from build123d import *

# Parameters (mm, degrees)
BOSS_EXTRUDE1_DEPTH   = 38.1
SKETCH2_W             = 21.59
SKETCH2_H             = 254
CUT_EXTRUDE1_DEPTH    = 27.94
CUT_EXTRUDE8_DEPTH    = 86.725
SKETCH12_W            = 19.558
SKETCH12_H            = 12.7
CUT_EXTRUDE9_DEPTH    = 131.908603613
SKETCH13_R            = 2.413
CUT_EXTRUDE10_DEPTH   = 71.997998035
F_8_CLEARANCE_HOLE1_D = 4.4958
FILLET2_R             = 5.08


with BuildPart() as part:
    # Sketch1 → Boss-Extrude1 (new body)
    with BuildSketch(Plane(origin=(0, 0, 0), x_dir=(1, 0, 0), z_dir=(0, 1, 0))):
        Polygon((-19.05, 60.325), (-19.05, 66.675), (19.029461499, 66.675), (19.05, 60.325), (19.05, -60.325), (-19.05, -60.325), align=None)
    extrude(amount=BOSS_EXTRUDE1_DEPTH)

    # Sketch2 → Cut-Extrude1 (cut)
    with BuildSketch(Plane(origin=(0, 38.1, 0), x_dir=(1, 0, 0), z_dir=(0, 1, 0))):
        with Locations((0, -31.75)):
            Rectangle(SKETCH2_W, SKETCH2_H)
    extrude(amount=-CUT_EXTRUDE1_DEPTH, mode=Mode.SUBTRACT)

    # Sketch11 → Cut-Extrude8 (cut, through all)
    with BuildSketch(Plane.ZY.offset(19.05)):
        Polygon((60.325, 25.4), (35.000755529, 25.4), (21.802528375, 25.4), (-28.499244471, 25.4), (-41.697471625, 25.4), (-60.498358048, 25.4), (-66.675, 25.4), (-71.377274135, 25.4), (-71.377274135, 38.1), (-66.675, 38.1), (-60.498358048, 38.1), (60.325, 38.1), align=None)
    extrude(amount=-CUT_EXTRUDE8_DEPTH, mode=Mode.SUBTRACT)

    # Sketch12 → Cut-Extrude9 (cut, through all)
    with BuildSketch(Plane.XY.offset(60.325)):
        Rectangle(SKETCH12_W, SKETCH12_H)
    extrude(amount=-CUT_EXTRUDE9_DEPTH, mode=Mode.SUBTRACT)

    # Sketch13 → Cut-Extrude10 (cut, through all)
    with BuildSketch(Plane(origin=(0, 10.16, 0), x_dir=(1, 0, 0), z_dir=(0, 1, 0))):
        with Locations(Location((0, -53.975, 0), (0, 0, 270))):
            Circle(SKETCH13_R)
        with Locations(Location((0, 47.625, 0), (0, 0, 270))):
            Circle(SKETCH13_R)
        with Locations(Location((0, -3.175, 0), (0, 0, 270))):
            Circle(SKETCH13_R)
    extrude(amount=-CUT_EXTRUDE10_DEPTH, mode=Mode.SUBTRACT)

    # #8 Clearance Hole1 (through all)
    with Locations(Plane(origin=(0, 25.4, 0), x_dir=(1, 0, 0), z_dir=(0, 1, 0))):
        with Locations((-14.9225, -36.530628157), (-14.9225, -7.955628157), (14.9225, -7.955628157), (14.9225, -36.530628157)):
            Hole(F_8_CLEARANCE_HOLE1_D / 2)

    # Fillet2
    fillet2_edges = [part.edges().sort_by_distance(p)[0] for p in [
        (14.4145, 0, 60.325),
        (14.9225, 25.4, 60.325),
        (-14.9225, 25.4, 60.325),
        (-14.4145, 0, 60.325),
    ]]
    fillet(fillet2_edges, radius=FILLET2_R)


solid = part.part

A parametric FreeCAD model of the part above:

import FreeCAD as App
import Part
import Sketcher
Q = App.Units.Quantity


def edges_at(feature, points):
    """Names of the edges that pass closest to the given points."""
    edges = feature.Shape.Edges
    near = lambda p: min(range(len(edges)), key=lambda i: edges[i].distToShape(Part.Vertex(*p))[0])
    return sorted({f"Edge{near(p) + 1}" for p in points})

doc = App.newDocument("Part")
body = doc.addObject("PartDesign::Body", "Body")

sketch1 = body.newObject("Sketcher::SketchObject", "Sketch")
sketch1.AttachmentSupport = (doc.getObject("XZ_Plane"), [""])
sketch1.MapMode = "FlatFace"
sketch1.addGeometry(Part.LineSegment(App.Vector(-19, -67, 0), App.Vector(-19, 60, 0)), False)
sketch1.addGeometry(Part.LineSegment(App.Vector(-19, 60, 0), App.Vector(19, 60, 0)), False)
sketch1.addGeometry(Part.LineSegment(App.Vector(19, 60, 0), App.Vector(19, -60, 0)), False)
sketch1.addGeometry(Part.LineSegment(App.Vector(19, -60, 0), App.Vector(19, -67, 0)), False)
sketch1.addGeometry(Part.LineSegment(App.Vector(19, -67, 0), App.Vector(-19, -67, 0)), False)
sketch1.addConstraint(Sketcher.Constraint("Coincident", 0, 2, 1, 1))
sketch1.addConstraint(Sketcher.Constraint("Coincident", 1, 2, 2, 1))
sketch1.addConstraint(Sketcher.Constraint("Coincident", 2, 2, 3, 1))
sketch1.addConstraint(Sketcher.Constraint("Coincident", 3, 2, 4, 1))
sketch1.addConstraint(Sketcher.Constraint("Coincident", 4, 2, 0, 1))
sketch1.addConstraint(Sketcher.Constraint("Vertical", 0))
sketch1.addConstraint(Sketcher.Constraint("Horizontal", 1))
sketch1.addConstraint(Sketcher.Constraint("Vertical", 2))
sketch1.addConstraint(Sketcher.Constraint("Horizontal", 4))
sketch1.addConstraint(Sketcher.Constraint("Symmetric", 0, 2, 2, 2, -1, 1))
sketch1.addConstraint(Sketcher.Constraint("DistanceY", 0, 1, 0, 2, Q("5 in")))
sketch1.addConstraint(Sketcher.Constraint("DistanceX", 1, 1, 1, 2, Q("1.5 in")))
sketch1.addConstraint(Sketcher.Constraint("DistanceY", 2, 2, 2, 1, Q("4.75 in")))
sketch1.addConstraint(Sketcher.Constraint("DistanceX", 4, 2, 4, 1, Q("38.079461 mm")))
pad1 = body.newObject("PartDesign::Pad", "Pad")
pad1.Profile = sketch1
pad1.Length = Q("1.5 in")
pad1.Reversed = True

sketch2 = body.newObject("Sketcher::SketchObject", "Sketch001")
sketch2.AttachmentSupport = (doc.getObject("XZ_Plane"), [""])
sketch2.MapMode = "FlatFace"
sketch2.AttachmentOffset = App.Placement(App.Vector(0, 0, -1.5 * 25.4), App.Rotation())
sketch2.addGeometry(Part.LineSegment(App.Vector(-11, -95, 0), App.Vector(-11, 159, 0)), False)
sketch2.addGeometry(Part.LineSegment(App.Vector(-11, 159, 0), App.Vector(11, 159, 0)), False)
sketch2.addGeometry(Part.LineSegment(App.Vector(11, 159, 0), App.Vector(11, -95, 0)), False)
sketch2.addGeometry(Part.LineSegment(App.Vector(11, -95, 0), App.Vector(-11, -95, 0)), False)
sketch2.addConstraint(Sketcher.Constraint("Coincident", 0, 2, 1, 1))
sketch2.addConstraint(Sketcher.Constraint("Coincident", 1, 2, 2, 1))
sketch2.addConstraint(Sketcher.Constraint("Coincident", 2, 2, 3, 1))
sketch2.addConstraint(Sketcher.Constraint("Coincident", 3, 2, 0, 1))
sketch2.addConstraint(Sketcher.Constraint("Vertical", 0))
sketch2.addConstraint(Sketcher.Constraint("Horizontal", 1))
sketch2.addConstraint(Sketcher.Constraint("Vertical", 2))
sketch2.addConstraint(Sketcher.Constraint("Horizontal", 3))
sketch2.addConstraint(Sketcher.Constraint("DistanceY", 0, 1, 0, 2, Q("10 in")))
sketch2.addConstraint(Sketcher.Constraint("DistanceX", 1, 1, 1, 2, Q("0.85 in")))
sketch2.addConstraint(Sketcher.Constraint("DistanceY", -1, 1, 0, 2, Q("6.25 in")))
sketch2.addConstraint(Sketcher.Constraint("DistanceX", 0, 2, -1, 1, Q("0.425 in")))
pocket1 = body.newObject("PartDesign::Pocket", "Pocket")
pocket1.Profile = sketch2
pocket1.Length = Q("1.1 in")
pocket1.Reversed = True

sketch3 = body.newObject("Sketcher::SketchObject", "Sketch002")
sketch3.AttachmentSupport = (doc.getObject("YZ_Plane"), [""])
sketch3.MapMode = "FlatFace"
sketch3.AttachmentOffset = App.Placement(App.Vector(0, 0, -0.75 * 25.4), App.Rotation())
sketch3.addGeometry(Part.LineSegment(App.Vector(25, -71, 0), App.Vector(25, 60, 0)), False)
sketch3.addGeometry(Part.LineSegment(App.Vector(25, 60, 0), App.Vector(38, 60, 0)), False)
sketch3.addGeometry(Part.LineSegment(App.Vector(38, 60, 0), App.Vector(38, -71, 0)), False)
sketch3.addGeometry(Part.LineSegment(App.Vector(38, -71, 0), App.Vector(25, -71, 0)), False)
sketch3.addConstraint(Sketcher.Constraint("Coincident", 0, 2, 1, 1))
sketch3.addConstraint(Sketcher.Constraint("Coincident", 1, 2, 2, 1))
sketch3.addConstraint(Sketcher.Constraint("Coincident", 2, 2, 3, 1))
sketch3.addConstraint(Sketcher.Constraint("Coincident", 3, 2, 0, 1))
sketch3.addConstraint(Sketcher.Constraint("Vertical", 0))
sketch3.addConstraint(Sketcher.Constraint("Horizontal", 1))
sketch3.addConstraint(Sketcher.Constraint("Vertical", 2))
sketch3.addConstraint(Sketcher.Constraint("Horizontal", 3))
sketch3.addConstraint(Sketcher.Constraint("DistanceX", 1, 1, 1, 2, Q("0.5 in")))
sketch3.addConstraint(Sketcher.Constraint("DistanceX", -1, 1, 0, 2, Q("1 in")))
sketch3.addConstraint(Sketcher.Constraint("DistanceY", -1, 1, 0, 2, Q("2.375 in")))
sketch3.addConstraint(Sketcher.Constraint("DistanceY", 0, 1, 0, 2, Q("131.702274 mm")))
pocket2 = body.newObject("PartDesign::Pocket", "Pocket001")
pocket2.Profile = sketch3
pocket2.Type = "ThroughAll"
pocket2.Reversed = True

sketch4 = body.newObject("Sketcher::SketchObject", "Sketch003")
sketch4.AttachmentSupport = (doc.getObject("XY_Plane"), [""])
sketch4.MapMode = "FlatFace"
sketch4.AttachmentOffset = App.Placement(App.Vector(0, 0, 2.375 * 25.4), App.Rotation())
sketch4.addGeometry(Part.LineSegment(App.Vector(-10, 6, 0), App.Vector(-10, -6, 0)), False)
sketch4.addGeometry(Part.LineSegment(App.Vector(-10, -6, 0), App.Vector(10, -6, 0)), False)
sketch4.addGeometry(Part.LineSegment(App.Vector(10, -6, 0), App.Vector(10, 6, 0)), False)
sketch4.addGeometry(Part.LineSegment(App.Vector(10, 6, 0), App.Vector(-10, 6, 0)), False)
sketch4.addConstraint(Sketcher.Constraint("Coincident", 0, 2, 1, 1))
sketch4.addConstraint(Sketcher.Constraint("Coincident", 1, 2, 2, 1))
sketch4.addConstraint(Sketcher.Constraint("Coincident", 2, 2, 3, 1))
sketch4.addConstraint(Sketcher.Constraint("Coincident", 3, 2, 0, 1))
sketch4.addConstraint(Sketcher.Constraint("Vertical", 0))
sketch4.addConstraint(Sketcher.Constraint("Horizontal", 1))
sketch4.addConstraint(Sketcher.Constraint("Vertical", 2))
sketch4.addConstraint(Sketcher.Constraint("Horizontal", 3))
sketch4.addConstraint(Sketcher.Constraint("Symmetric", 0, 2, 2, 2, -1, 1))
sketch4.addConstraint(Sketcher.Constraint("DistanceY", 0, 2, 0, 1, Q("0.5 in")))
sketch4.addConstraint(Sketcher.Constraint("DistanceX", 1, 1, 1, 2, Q("0.77 in")))
pocket3 = body.newObject("PartDesign::Pocket", "Pocket002")
pocket3.Profile = sketch4
pocket3.Type = "ThroughAll"

sketch5 = body.newObject("Sketcher::SketchObject", "Sketch004")
sketch5.AttachmentSupport = (doc.getObject("XZ_Plane"), [""])
sketch5.MapMode = "FlatFace"
sketch5.AttachmentOffset = App.Placement(App.Vector(0, 0, -0.4 * 25.4), App.Rotation())
sketch5.addGeometry(Part.Circle(App.Vector(0, 54, 0), App.Vector(0, 0, 1), 2.4), False)
sketch5.addGeometry(Part.Circle(App.Vector(0, -47.6, 0), App.Vector(0, 0, 1), 2.4), False)
sketch5.addGeometry(Part.Circle(App.Vector(0, 3.2, 0), App.Vector(0, 0, 1), 2.4), False)
sketch5.addConstraint(Sketcher.Constraint("Equal", 0, 1))
sketch5.addConstraint(Sketcher.Constraint("Equal", 1, 2))
sketch5.addConstraint(Sketcher.Constraint("PointOnObject", 0, 3, -2))
sketch5.addConstraint(Sketcher.Constraint("PointOnObject", 1, 3, -2))
sketch5.addConstraint(Sketcher.Constraint("PointOnObject", 2, 3, -2))
sketch5.addConstraint(Sketcher.Constraint("Diameter", 0, Q("0.19 in")))
sketch5.addConstraint(Sketcher.Constraint("DistanceY", 1, 3, 0, 3, Q("4 in")))
sketch5.addConstraint(Sketcher.Constraint("DistanceY", 1, 3, 2, 3, Q("2 in")))
sketch5.addConstraint(Sketcher.Constraint("DistanceY", -1, 1, 0, 3, Q("2.125 in")))
pocket4 = body.newObject("PartDesign::Pocket", "Pocket003")
pocket4.Profile = sketch5
pocket4.Type = "ThroughAll"
pocket4.Reversed = True

sketch6 = body.newObject("Sketcher::SketchObject", "Sketch005")
sketch6.AttachmentSupport = (doc.getObject("XZ_Plane"), [""])
sketch6.MapMode = "FlatFace"
sketch6.AttachmentOffset = App.Placement(App.Vector(0, 0, -1 * 25.4), App.Rotation())
sketch6.addGeometry(Part.Circle(App.Vector(-14.9, 36.5, 0), App.Vector(0, 0, 1), 2.2), False)
sketch6.addGeometry(Part.Circle(App.Vector(-14.9, 8, 0), App.Vector(0, 0, 1), 2.2), False)
sketch6.addGeometry(Part.Circle(App.Vector(14.9, 8, 0), App.Vector(0, 0, 1), 2.2), False)
sketch6.addGeometry(Part.Circle(App.Vector(14.9, 36.5, 0), App.Vector(0, 0, 1), 2.2), False)
sketch6.addConstraint(Sketcher.Constraint("Equal", 0, 1))
sketch6.addConstraint(Sketcher.Constraint("Equal", 1, 2))
sketch6.addConstraint(Sketcher.Constraint("Equal", 2, 3))
sketch6.addConstraint(Sketcher.Constraint("Symmetric", 1, 3, 2, 3, -2))
sketch6.addConstraint(Sketcher.Constraint("Symmetric", 0, 3, 3, 3, -2))
sketch6.addConstraint(Sketcher.Constraint("Vertical", 0, 3, 1, 3))
sketch6.addConstraint(Sketcher.Constraint("Diameter", 0, Q("0.177 in")))
sketch6.addConstraint(Sketcher.Constraint("DistanceY", 1, 3, 0, 3, Q("1.125 in")))
sketch6.addConstraint(Sketcher.Constraint("DistanceX", 1, 3, 2, 3, Q("1.175 in")))
sketch6.addConstraint(Sketcher.Constraint("DistanceY", -1, 1, 0, 3, Q("36.530628 mm")))
doc.recompute()
hole = body.newObject("PartDesign::Hole", "Hole")
hole.Profile = sketch6
hole.ThreadType = "None"
hole.Diameter = Q("0.177 in")
hole.DepthType = "ThroughAll"
hole.Reversed = True
doc.recompute()

fillet = body.newObject("PartDesign::Fillet", "Fillet")
fillet.Base = (hole, edges_at(hole, [
    (14.415, 0, 60.325),
    (14.922, 25.4, 60.325),
    (-14.922, 25.4, 60.325),
    (-14.415, 0, 60.325),
]))
fillet.Radius = Q("0.2 in")

doc.recompute()
